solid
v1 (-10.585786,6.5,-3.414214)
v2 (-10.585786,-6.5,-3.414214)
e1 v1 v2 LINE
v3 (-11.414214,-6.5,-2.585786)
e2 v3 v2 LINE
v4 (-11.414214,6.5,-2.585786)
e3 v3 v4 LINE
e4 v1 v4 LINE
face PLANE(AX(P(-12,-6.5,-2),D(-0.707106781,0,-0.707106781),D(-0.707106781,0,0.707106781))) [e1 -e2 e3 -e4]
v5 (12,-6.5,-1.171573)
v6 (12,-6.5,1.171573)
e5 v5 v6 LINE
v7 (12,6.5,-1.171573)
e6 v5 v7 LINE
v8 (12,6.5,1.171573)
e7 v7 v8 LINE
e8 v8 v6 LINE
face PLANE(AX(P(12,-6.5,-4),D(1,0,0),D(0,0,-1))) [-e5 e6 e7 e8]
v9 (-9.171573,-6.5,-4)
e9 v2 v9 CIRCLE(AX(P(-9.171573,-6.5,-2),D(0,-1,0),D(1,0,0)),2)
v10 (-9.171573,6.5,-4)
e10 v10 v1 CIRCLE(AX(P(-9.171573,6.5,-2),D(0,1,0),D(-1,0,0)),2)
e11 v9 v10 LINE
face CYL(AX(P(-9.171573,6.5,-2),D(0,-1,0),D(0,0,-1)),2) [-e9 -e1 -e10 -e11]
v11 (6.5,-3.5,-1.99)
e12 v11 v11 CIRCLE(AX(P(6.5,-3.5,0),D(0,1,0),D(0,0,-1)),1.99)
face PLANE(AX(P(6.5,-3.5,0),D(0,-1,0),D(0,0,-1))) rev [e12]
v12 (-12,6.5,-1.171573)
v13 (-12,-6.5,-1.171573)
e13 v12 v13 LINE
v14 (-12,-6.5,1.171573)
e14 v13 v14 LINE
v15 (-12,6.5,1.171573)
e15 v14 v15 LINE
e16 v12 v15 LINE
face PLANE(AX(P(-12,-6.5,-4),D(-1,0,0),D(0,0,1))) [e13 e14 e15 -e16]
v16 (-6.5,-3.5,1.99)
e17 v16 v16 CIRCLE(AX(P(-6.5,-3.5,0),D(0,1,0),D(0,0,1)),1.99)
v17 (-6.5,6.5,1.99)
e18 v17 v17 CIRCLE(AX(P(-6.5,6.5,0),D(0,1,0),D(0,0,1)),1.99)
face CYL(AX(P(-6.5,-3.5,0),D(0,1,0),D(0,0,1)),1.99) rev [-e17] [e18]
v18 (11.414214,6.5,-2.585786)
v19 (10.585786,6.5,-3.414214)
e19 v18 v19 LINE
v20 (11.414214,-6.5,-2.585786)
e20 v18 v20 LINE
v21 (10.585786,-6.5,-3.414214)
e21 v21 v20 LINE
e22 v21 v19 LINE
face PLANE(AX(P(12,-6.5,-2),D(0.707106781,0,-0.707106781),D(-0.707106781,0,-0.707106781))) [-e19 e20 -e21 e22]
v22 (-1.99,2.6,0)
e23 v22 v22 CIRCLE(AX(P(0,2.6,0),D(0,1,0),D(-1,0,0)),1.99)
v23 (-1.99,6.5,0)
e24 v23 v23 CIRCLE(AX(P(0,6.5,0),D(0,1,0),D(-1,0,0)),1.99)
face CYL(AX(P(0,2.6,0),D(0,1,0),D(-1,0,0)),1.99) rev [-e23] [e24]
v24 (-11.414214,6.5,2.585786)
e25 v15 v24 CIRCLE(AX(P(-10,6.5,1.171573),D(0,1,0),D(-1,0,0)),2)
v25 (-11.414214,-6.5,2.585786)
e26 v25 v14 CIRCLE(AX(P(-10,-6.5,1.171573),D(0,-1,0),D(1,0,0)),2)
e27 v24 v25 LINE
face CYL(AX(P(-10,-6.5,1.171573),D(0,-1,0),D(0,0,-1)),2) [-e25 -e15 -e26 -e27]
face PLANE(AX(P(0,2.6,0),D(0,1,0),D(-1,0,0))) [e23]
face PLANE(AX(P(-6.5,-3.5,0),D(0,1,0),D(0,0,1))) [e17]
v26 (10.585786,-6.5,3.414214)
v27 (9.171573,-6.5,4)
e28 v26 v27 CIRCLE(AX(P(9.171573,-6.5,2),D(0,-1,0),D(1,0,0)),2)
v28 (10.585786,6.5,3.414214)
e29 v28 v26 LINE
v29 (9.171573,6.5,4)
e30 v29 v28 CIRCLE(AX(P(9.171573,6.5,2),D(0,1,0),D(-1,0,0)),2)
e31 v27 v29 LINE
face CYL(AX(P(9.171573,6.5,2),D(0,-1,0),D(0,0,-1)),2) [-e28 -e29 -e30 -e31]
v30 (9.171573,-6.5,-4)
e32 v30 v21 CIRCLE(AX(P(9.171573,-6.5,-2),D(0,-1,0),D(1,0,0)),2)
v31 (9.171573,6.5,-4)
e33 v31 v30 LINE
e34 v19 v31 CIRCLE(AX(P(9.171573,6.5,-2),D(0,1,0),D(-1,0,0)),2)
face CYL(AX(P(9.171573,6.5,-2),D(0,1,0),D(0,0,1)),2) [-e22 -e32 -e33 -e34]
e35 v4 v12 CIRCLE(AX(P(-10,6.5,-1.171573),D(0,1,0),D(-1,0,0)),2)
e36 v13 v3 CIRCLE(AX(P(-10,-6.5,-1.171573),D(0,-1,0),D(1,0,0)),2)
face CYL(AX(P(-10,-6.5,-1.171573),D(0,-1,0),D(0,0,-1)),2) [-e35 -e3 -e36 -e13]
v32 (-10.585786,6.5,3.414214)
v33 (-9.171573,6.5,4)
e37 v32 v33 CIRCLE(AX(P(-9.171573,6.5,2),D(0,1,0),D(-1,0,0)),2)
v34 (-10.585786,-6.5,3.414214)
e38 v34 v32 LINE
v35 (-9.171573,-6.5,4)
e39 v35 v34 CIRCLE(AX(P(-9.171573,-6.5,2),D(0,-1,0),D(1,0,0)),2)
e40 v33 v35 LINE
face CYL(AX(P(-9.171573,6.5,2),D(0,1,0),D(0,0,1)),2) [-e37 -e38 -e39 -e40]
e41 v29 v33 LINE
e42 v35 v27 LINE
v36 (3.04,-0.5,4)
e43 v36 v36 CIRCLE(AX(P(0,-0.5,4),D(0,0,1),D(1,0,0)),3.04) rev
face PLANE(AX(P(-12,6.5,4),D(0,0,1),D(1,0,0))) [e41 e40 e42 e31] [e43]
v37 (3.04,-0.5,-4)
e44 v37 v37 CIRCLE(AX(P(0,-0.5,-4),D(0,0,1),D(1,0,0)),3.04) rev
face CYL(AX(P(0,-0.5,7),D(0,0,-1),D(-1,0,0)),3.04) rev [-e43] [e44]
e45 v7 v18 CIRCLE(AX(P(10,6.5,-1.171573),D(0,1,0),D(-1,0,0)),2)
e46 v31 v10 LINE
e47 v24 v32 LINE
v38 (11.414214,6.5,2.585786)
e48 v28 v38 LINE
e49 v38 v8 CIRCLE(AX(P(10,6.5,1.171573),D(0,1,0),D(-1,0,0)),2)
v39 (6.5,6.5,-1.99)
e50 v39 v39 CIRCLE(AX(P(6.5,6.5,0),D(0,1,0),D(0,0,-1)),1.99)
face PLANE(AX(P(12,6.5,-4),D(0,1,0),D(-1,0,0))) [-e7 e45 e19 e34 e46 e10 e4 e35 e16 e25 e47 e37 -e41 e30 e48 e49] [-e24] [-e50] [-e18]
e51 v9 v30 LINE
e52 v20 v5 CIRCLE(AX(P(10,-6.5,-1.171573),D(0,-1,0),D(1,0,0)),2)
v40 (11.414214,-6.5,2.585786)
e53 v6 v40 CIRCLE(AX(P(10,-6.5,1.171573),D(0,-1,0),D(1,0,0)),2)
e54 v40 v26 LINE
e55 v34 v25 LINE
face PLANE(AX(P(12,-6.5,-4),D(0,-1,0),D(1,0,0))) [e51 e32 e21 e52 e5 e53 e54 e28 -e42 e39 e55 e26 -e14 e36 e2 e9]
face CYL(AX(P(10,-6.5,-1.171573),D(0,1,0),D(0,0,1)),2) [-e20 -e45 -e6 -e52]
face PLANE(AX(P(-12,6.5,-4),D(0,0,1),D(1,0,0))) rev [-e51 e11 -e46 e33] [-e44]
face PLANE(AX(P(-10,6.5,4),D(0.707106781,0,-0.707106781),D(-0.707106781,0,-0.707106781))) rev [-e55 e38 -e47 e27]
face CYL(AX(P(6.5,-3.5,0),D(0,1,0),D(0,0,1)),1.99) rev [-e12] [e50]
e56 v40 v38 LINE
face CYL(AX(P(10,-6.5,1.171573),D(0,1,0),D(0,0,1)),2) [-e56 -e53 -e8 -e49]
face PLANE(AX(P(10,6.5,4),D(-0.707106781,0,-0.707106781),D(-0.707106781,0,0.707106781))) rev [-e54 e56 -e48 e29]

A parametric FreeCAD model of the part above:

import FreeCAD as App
import Part
import Sketcher

V = App.Vector
Q = App.Units.Quantity


def edges_at(feature, points):
    """Names of the edges that pass closest to the given points."""
    edges = feature.Shape.Edges
    near = lambda p: min(range(len(edges)), key=lambda i: edges[i].distToShape(Part.Vertex(*p))[0])
    return sorted({f"Edge{near(p) + 1}" for p in points})

doc = App.newDocument("Part")
body = doc.addObject("PartDesign::Body", "Body")

# Sketch on XY plane
sketch1 = body.newObject("Sketcher::SketchObject", "Sketch")
sketch1.AttachmentSupport = (doc.getObject("XY_Plane"), [""])
sketch1.MapMode = "FlatFace"
sketch1.addGeometry([
    Part.LineSegment(V(-12, 6.5, 0), V(-12, -6.5, 0)),
    Part.LineSegment(V(-12, -6.5, 0), V(12, -6.5, 0)),
    Part.LineSegment(V(12, -6.5, 0), V(12, 6.5, 0)),
    Part.LineSegment(V(12, 6.5, 0), V(-12, 6.5, 0)),
], False)
sketch1.addConstraint([
    Sketcher.Constraint("Coincident", 0, 2, 1, 1),
    Sketcher.Constraint("Coincident", 1, 2, 2, 1),
    Sketcher.Constraint("Coincident", 2, 2, 3, 1),
    Sketcher.Constraint("Coincident", 3, 2, 0, 1),
    Sketcher.Constraint("Vertical", 0),
    Sketcher.Constraint("Horizontal", 1),
    Sketcher.Constraint("Vertical", 2),
    Sketcher.Constraint("Horizontal", 3),
    Sketcher.Constraint("Symmetric", 0, 2, 2, 2, -1, 1),
    Sketcher.Constraint("DistanceX", 1, 1, 1, 2, Q("24 mm")),
    Sketcher.Constraint("DistanceY", 0, 2, 0, 1, Q("13 mm")),
])
pad1 = body.newObject("PartDesign::Pad", "Pad")
pad1.Profile = sketch1
pad1.Type = "TwoLengths"
pad1.Length = 4
pad1.Length2 = 4

# Sketch on XY plane
sketch2 = body.newObject("Sketcher::SketchObject", "Sketch001")
sketch2.AttachmentSupport = (doc.getObject("XY_Plane"), [""])
sketch2.MapMode = "FlatFace"
sketch2.addGeometry(Part.Circle(V(0, -0.5, 0), V(0, 0, 1), 3.04), False)
sketch2.addConstraint([
    Sketcher.Constraint("PointOnObject", 0, 3, -2),
    Sketcher.Constraint("Diameter", 0, Q("6.08 mm")),
    Sketcher.Constraint("DistanceY", 0, 3, -1, 1, Q("0.5 mm")),
])
pocket1 = body.newObject("PartDesign::Pocket", "Pocket")
pocket1.Profile = sketch2
pocket1.Type = "ThroughAll"
pocket1.Midplane = True

# Sketch on XZ plane
sketch3 = body.newObject("Sketcher::SketchObject", "Sketch002")
sketch3.AttachmentSupport = (doc.getObject("XZ_Plane"), [""])
sketch3.MapMode = "FlatFace"
sketch3.AttachmentOffset = App.Placement(V(0, 0, -6.5), App.Rotation())
sketch3.addGeometry([
    Part.Circle(V(-6.5, 0, 0), V(0, 0, 1), 1.99),
    Part.Circle(V(6.5, 0, 0), V(0, 0, 1), 1.99),
], False)
sketch3.addConstraint([
    Sketcher.Constraint("Equal", 0, 1),
    Sketcher.Constraint("Symmetric", 0, 3, 1, 3, -1, 1),
    Sketcher.Constraint("PointOnObject", 0, 3, -1),
    Sketcher.Constraint("Diameter", 0, Q("3.98 mm")),
    Sketcher.Constraint("DistanceX", 0, 3, 1, 3, Q("13 mm")),
])
pocket2 = body.newObject("PartDesign::Pocket", "Pocket001")
pocket2.Profile = sketch3
pocket2.Length = 10
pocket2.Reversed = True

# Sketch on XZ plane
sketch4 = body.newObject("Sketcher::SketchObject", "Sketch003")
sketch4.AttachmentSupport = (doc.getObject("XZ_Plane"), [""])
sketch4.MapMode = "FlatFace"
sketch4.AttachmentOffset = App.Placement(V(0, 0, -6.5), App.Rotation())
sketch4.addGeometry(Part.Circle(V(0, 0, 0), V(0, 0, 1), 1.99), False)
sketch4.addConstraint([
    Sketcher.Constraint("Coincident", 0, 3, -1, 1),
    Sketcher.Constraint("Diameter", 0, Q("3.98 mm")),
])
pocket3 = body.newObject("PartDesign::Pocket", "Pocket002")
pocket3.Profile = sketch4
pocket3.Length = 3.9
pocket3.Reversed = True
doc.recompute()

chamfer = body.newObject("PartDesign::Chamfer", "Chamfer")
chamfer.Base = (pocket3, edges_at(pocket3, [
    (12, 0, -4),
    (-12, 0, 4),
    (12, 0, 4),
    (-12, 0, -4),
]))
chamfer.Size = 2
doc.recompute()

fillet = body.newObject("PartDesign::Fillet", "Fillet")
fillet.Base = (chamfer, edges_at(chamfer, [
    (-10, 0, 4),
    (10, 0, 4),
    (12, 0, -2),
    (12, 0, 2),
    (-10, 0, -4),
    (10, 0, -4),
    (-12, 0, -2),
    (-12, 0, 2),
]))
fillet.Radius = 2

doc.recompute()
